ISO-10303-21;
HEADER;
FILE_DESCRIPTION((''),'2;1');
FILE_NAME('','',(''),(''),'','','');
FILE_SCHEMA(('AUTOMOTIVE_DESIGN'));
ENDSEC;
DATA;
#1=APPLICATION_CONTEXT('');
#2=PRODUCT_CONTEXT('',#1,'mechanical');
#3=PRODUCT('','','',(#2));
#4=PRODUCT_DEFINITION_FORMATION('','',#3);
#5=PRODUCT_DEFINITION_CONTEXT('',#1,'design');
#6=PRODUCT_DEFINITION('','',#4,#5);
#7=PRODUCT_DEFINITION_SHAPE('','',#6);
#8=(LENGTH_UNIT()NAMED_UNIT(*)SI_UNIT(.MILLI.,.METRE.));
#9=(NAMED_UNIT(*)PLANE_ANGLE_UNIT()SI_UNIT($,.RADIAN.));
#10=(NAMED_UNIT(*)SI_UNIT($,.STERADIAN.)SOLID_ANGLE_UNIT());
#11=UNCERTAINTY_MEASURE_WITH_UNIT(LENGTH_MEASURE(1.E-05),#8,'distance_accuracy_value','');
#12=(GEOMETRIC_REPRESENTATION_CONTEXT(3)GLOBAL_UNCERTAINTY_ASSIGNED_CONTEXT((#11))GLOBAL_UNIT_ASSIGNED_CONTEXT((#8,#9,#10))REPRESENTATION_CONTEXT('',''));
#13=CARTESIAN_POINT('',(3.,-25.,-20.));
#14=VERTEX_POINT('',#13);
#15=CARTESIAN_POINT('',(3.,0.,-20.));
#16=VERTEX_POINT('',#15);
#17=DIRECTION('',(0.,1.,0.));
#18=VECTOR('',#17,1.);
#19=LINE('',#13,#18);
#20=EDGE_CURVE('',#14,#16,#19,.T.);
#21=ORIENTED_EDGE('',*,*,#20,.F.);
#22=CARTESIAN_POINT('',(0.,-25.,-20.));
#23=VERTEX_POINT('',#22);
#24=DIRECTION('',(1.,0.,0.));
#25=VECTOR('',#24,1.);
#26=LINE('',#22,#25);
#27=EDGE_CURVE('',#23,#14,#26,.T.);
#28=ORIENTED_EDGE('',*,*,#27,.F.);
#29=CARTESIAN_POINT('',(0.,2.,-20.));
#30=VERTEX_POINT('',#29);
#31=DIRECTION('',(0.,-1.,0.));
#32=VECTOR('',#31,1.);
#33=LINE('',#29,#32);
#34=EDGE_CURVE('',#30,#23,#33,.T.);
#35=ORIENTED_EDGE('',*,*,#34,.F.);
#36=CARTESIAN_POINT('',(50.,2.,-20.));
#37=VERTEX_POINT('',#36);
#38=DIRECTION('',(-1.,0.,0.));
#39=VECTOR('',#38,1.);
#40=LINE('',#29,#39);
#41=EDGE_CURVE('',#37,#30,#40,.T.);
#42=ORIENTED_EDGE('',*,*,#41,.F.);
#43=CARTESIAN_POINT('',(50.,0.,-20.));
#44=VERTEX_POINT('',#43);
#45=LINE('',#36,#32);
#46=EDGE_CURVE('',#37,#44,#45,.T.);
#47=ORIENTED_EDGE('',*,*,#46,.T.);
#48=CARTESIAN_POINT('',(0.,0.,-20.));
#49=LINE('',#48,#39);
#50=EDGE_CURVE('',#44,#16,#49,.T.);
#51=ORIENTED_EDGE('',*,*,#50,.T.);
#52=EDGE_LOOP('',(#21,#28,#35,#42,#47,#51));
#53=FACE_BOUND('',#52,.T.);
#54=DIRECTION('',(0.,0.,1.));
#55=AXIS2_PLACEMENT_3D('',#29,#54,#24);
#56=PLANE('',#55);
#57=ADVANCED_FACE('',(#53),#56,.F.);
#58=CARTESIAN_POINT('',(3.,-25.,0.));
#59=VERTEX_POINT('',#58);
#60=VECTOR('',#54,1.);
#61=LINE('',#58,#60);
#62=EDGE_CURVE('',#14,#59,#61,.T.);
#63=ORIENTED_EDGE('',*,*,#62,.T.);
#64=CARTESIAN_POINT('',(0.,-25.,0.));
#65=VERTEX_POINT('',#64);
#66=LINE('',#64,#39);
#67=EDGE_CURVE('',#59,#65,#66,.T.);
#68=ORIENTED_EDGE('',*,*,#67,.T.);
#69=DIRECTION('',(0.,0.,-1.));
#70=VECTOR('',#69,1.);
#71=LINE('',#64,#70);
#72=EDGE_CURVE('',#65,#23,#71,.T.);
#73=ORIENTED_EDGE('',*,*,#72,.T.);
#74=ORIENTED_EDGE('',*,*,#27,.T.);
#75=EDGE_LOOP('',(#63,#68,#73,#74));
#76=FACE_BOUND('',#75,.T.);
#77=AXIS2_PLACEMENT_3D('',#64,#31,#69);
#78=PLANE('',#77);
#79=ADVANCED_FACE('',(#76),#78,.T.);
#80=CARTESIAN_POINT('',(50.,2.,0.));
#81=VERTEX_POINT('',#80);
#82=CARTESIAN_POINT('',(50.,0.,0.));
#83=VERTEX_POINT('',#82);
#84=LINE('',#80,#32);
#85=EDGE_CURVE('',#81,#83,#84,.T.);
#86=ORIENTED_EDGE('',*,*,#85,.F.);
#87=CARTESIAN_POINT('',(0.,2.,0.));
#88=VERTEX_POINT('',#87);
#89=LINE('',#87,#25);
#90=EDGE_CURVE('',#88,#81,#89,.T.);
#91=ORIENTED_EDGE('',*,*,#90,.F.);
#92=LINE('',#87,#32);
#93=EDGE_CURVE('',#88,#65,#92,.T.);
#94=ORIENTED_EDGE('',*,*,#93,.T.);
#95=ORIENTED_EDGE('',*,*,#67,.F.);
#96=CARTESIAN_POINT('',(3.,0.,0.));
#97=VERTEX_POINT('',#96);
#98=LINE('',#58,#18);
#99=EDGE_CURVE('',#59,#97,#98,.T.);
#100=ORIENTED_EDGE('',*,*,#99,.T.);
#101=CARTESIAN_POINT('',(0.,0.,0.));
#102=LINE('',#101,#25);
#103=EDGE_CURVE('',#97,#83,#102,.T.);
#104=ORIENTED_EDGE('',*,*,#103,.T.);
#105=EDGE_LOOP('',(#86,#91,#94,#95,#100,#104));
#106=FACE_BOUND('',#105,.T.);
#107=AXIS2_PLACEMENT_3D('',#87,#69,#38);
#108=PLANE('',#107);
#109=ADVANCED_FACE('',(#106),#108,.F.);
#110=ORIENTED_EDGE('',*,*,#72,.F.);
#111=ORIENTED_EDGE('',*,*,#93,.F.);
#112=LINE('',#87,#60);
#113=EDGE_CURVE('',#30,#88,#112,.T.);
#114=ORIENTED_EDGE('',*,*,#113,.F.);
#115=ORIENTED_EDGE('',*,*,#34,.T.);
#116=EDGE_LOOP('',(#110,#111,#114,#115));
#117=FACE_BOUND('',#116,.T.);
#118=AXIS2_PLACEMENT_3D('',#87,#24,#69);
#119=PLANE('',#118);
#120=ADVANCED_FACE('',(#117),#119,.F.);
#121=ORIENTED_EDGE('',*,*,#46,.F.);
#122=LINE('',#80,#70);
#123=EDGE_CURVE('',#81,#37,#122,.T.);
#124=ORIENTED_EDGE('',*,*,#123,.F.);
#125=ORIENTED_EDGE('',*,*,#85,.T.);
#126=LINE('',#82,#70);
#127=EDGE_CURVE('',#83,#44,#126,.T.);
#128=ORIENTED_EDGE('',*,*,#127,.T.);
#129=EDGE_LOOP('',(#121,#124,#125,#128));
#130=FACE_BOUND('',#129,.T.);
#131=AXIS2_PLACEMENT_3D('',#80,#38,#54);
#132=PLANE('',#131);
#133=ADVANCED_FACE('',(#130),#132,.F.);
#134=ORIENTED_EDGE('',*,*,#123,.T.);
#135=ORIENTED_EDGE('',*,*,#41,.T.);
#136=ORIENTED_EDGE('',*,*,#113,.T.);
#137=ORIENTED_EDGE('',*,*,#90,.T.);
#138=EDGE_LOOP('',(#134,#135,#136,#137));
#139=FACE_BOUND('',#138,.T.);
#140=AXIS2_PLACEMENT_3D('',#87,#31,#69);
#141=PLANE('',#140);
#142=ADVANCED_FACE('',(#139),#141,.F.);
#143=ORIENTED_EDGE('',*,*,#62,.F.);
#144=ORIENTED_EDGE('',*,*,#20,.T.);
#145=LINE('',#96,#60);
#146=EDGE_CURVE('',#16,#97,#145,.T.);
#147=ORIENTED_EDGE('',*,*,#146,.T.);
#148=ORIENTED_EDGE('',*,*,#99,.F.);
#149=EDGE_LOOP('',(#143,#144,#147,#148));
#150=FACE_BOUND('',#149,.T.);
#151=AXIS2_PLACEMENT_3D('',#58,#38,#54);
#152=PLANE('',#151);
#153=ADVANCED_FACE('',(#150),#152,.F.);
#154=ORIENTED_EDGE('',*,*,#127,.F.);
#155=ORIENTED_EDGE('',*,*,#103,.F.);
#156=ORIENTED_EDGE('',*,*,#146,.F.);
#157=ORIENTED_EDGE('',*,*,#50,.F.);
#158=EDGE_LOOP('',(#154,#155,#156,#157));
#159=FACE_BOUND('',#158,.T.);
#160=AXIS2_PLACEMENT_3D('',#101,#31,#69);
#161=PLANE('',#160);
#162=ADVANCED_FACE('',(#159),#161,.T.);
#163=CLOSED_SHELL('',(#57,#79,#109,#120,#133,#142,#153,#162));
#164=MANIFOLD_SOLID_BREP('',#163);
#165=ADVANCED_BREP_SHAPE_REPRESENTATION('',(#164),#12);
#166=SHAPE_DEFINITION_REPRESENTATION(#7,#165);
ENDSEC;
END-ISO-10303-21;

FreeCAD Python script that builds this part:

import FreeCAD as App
import Part
import Sketcher
from FreeCAD import Vector
Q = App.Units.Quantity


def add_polygon(sketch, points):
    """Adds a closed chain of lines whose ends are joined by coincident constraints."""
    first, n = sketch.GeometryCount, len(points)
    for a, b in zip(points, points[1:] + points[:1]):
        sketch.addGeometry(Part.LineSegment(App.Vector(*a, 0), App.Vector(*b, 0)), False)
    for i in range(n):
        sketch.addConstraint(Sketcher.Constraint("Coincident", first + i, 2, first + (i + 1) % n, 1))

doc = App.newDocument("Part")
body = doc.addObject("PartDesign::Body", "Body")

# Sketch on XZ plane
sketch1 = body.newObject("Sketcher::SketchObject", "Sketch")
sketch1.AttachmentSupport = (doc.getObject("XZ_Plane"), [""])
sketch1.MapMode = "FlatFace"
add_polygon(sketch1, [(0, -20), (0, 0), (50, 0), (50, -20)])  # lines 0-3
sketch1.addConstraint([
    Sketcher.Constraint("Vertical", 0),
    Sketcher.Constraint("Horizontal", 1),
    Sketcher.Constraint("Vertical", 2),
    Sketcher.Constraint("Horizontal", 3),
    Sketcher.Constraint("Coincident", 0, 2, -1, 1),
    Sketcher.Constraint("DistanceX", 1, 1, 1, 2, Q("50 mm")),
    Sketcher.Constraint("DistanceY", 0, 1, 0, 2, Q("20 mm")),
])
pad1 = body.newObject("PartDesign::Pad", "Pad")
pad1.Profile = sketch1
pad1.Length = 2
pad1.Reversed = True

# Sketch on XZ plane
sketch2 = body.newObject("Sketcher::SketchObject", "Sketch001")
sketch2.AttachmentSupport = (doc.getObject("XZ_Plane"), [""])
sketch2.MapMode = "FlatFace"
add_polygon(sketch2, [(0, 0), (0, -20), (3, -20), (3, 0)])  # lines 0-3
sketch2.addConstraint([
    Sketcher.Constraint("Vertical", 0),
    Sketcher.Constraint("Horizontal", 1),
    Sketcher.Constraint("Vertical", 2),
    Sketcher.Constraint("Horizontal", 3),
    Sketcher.Constraint("Coincident", 3, 2, -1, 1),
    Sketcher.Constraint("DistanceX", 1, 1, 1, 2, Q("3 mm")),
    Sketcher.Constraint("DistanceY", 0, 2, 0, 1, Q("20 mm")),
])
pad2 = body.newObject("PartDesign::Pad", "Pad001")
pad2.Profile = sketch2
pad2.Length = 25

doc.recompute()
